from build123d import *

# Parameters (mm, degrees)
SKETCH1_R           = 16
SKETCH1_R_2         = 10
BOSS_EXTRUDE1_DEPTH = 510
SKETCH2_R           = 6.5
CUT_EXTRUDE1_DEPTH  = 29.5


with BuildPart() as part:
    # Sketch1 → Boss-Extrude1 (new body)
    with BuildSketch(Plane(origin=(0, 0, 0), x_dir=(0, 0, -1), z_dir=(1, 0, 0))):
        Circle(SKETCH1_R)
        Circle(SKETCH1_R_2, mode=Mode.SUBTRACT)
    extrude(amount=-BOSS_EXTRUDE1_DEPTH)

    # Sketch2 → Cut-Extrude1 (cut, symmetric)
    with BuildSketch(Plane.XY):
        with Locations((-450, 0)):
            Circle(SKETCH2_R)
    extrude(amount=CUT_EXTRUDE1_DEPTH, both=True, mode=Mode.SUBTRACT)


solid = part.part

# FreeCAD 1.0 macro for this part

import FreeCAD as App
import Part
import Sketcher

V = App.Vector
Q = App.Units.Quantity

doc = App.newDocument("Part")
body = doc.addObject("PartDesign::Body", "Body")

# Sketch on YZ plane
sketch1 = body.newObject("Sketcher::SketchObject", "Sketch")
sketch1.AttachmentSupport = (doc.getObject("YZ_Plane"), [""])
sketch1.MapMode = "FlatFace"
sketch1.addGeometry([
    Part.Circle(V(0, 0, 0), V(0, 0, 1), 16),
    Part.Circle(V(0, 0, 0), V(0, 0, 1), 10),
], False)
sketch1.addConstraint([
    Sketcher.Constraint("Coincident", 0, 3, -1, 1),
    Sketcher.Constraint("Coincident", 1, 3, -1, 1),
    Sketcher.Constraint("Diameter", 0, Q("32 mm")),
    Sketcher.Constraint("Diameter", 1, Q("20 mm")),
])
pad1 = body.newObject("PartDesign::Pad", "Pad")
pad1.Profile = sketch1
pad1.Length = 510
pad1.Reversed = True

# Sketch on XY plane
sketch2 = body.newObject("Sketcher::SketchObject", "Sketch001")
sketch2.AttachmentSupport = (doc.getObject("XY_Plane"), [""])
sketch2.MapMode = "FlatFace"
sketch2.addGeometry(Part.Circle(V(-450, 0, 0), V(0, 0, 1), 6), False)
sketch2.addConstraint([
    Sketcher.Constraint("PointOnObject", 0, 3, -1),
    Sketcher.Constraint("Diameter", 0, Q("13 mm")),
    Sketcher.Constraint("DistanceX", 0, 3, -1, 1, Q("450 mm")),
])
pocket1 = body.newObject("PartDesign::Pocket", "Pocket")
pocket1.Profile = sketch2
pocket1.Length = 59
pocket1.Midplane = True

doc.recompute()
